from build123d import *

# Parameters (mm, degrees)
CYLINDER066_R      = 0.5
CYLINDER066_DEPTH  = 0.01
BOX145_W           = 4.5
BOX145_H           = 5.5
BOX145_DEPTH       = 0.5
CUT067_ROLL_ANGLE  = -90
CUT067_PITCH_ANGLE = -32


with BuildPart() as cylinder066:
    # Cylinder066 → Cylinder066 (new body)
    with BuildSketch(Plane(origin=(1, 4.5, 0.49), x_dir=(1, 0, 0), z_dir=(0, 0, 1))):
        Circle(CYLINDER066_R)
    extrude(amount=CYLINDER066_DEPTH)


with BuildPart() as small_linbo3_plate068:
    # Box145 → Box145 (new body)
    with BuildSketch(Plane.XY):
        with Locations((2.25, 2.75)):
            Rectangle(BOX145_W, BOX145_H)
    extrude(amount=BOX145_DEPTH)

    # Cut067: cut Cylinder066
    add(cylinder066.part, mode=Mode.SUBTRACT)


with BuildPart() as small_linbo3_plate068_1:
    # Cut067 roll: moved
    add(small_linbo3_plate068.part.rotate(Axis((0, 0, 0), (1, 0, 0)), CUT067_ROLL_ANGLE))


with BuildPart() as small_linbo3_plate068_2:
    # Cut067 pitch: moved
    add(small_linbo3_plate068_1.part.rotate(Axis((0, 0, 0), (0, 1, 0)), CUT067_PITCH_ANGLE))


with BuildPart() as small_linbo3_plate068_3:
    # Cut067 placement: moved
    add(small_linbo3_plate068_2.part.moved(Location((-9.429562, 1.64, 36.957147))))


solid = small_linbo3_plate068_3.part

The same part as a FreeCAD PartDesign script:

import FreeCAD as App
import Part
import Sketcher

V = App.Vector


def add_polygon(sketch, points):
    """Adds a closed chain of lines whose ends are joined by coincident constraints."""
    first, n = sketch.GeometryCount, len(points)
    for a, b in zip(points, points[1:] + points[:1]):
        sketch.addGeometry(Part.LineSegment(App.Vector(*a, 0), App.Vector(*b, 0)), False)
    for i in range(n):
        sketch.addConstraint(Sketcher.Constraint("Coincident", first + i, 2, first + (i + 1) % n, 1))

doc = App.newDocument("Part")
body = doc.addObject("PartDesign::Body", "Body")

# Sketch on XY plane
sketch1 = body.newObject("Sketcher::SketchObject", "Sketch")
sketch1.AttachmentSupport = (doc.getObject("XY_Plane"), [""])
sketch1.MapMode = "FlatFace"
sketch1.AttachmentOffset = App.Placement(V(0, 0, 0.49), App.Rotation())
sketch1.addGeometry(Part.Circle(V(1, 4.5, 0), V(0, 0, 1), 0.5), False)
sketch1.addConstraint([
    Sketcher.Constraint("Diameter", 0, 1.0),
    Sketcher.Constraint("DistanceX", -1, 1, 0, 3, 1.0),
    Sketcher.Constraint("DistanceY", -1, 1, 0, 3, 4.5),
])
pad1 = body.newObject("PartDesign::Pad", "Pad")
pad1.Profile = sketch1
pad1.Length = 0.01
body2 = doc.addObject("PartDesign::Body", "Body001")

# Sketch on XY plane
sketch2 = body2.newObject("Sketcher::SketchObject", "Sketch001")
sketch2.AttachmentSupport = (doc.getObject("XY_Plane001"), [""])
sketch2.MapMode = "FlatFace"
add_polygon(sketch2, [(0, 5.5), (0, 0), (4.5, 0), (4.5, 5.5)])  # lines 0-3
sketch2.addConstraint([
    Sketcher.Constraint("Vertical", 0),
    Sketcher.Constraint("Horizontal", 1),
    Sketcher.Constraint("Vertical", 2),
    Sketcher.Constraint("Horizontal", 3),
    Sketcher.Constraint("Coincident", 0, 2, -1, 1),
    Sketcher.Constraint("DistanceX", 1, 1, 1, 2, 4.5),
    Sketcher.Constraint("DistanceY", 0, 2, 0, 1, 5.5),
])
pad2 = body2.newObject("PartDesign::Pad", "Pad001")
pad2.Profile = sketch2
pad2.Length = 0.5
doc.recompute()

boolean = body2.newObject("PartDesign::Boolean", "Boolean")
boolean.Type = "Cut"
boolean.addObjects([body])
body3 = doc.addObject("PartDesign::Body", "Body002")
doc.recompute()

body2.Placement = App.Placement(V(0, 0, 0), App.Rotation(V(1, 0, 0), 270))
boolean2 = body3.newObject("PartDesign::Boolean", "Boolean001")
boolean2.Type = "Fuse"
boolean2.addObjects([body2])
body4 = doc.addObject("PartDesign::Body", "Body003")
doc.recompute()

body3.Placement = App.Placement(V(0, 0, 0), App.Rotation(V(0, 1, 0), 328))
boolean3 = body4.newObject("PartDesign::Boolean", "Boolean002")
boolean3.Type = "Fuse"
boolean3.addObjects([body3])
body5 = doc.addObject("PartDesign::Body", "Body004")
doc.recompute()

body4.Placement = App.Placement(V(-9.429562, 1.64, 36.957147), App.Rotation(V(0, 0, 1), 0))
boolean4 = body5.newObject("PartDesign::Boolean", "Boolean003")
boolean4.Type = "Fuse"
boolean4.addObjects([body4])

doc.recompute()
